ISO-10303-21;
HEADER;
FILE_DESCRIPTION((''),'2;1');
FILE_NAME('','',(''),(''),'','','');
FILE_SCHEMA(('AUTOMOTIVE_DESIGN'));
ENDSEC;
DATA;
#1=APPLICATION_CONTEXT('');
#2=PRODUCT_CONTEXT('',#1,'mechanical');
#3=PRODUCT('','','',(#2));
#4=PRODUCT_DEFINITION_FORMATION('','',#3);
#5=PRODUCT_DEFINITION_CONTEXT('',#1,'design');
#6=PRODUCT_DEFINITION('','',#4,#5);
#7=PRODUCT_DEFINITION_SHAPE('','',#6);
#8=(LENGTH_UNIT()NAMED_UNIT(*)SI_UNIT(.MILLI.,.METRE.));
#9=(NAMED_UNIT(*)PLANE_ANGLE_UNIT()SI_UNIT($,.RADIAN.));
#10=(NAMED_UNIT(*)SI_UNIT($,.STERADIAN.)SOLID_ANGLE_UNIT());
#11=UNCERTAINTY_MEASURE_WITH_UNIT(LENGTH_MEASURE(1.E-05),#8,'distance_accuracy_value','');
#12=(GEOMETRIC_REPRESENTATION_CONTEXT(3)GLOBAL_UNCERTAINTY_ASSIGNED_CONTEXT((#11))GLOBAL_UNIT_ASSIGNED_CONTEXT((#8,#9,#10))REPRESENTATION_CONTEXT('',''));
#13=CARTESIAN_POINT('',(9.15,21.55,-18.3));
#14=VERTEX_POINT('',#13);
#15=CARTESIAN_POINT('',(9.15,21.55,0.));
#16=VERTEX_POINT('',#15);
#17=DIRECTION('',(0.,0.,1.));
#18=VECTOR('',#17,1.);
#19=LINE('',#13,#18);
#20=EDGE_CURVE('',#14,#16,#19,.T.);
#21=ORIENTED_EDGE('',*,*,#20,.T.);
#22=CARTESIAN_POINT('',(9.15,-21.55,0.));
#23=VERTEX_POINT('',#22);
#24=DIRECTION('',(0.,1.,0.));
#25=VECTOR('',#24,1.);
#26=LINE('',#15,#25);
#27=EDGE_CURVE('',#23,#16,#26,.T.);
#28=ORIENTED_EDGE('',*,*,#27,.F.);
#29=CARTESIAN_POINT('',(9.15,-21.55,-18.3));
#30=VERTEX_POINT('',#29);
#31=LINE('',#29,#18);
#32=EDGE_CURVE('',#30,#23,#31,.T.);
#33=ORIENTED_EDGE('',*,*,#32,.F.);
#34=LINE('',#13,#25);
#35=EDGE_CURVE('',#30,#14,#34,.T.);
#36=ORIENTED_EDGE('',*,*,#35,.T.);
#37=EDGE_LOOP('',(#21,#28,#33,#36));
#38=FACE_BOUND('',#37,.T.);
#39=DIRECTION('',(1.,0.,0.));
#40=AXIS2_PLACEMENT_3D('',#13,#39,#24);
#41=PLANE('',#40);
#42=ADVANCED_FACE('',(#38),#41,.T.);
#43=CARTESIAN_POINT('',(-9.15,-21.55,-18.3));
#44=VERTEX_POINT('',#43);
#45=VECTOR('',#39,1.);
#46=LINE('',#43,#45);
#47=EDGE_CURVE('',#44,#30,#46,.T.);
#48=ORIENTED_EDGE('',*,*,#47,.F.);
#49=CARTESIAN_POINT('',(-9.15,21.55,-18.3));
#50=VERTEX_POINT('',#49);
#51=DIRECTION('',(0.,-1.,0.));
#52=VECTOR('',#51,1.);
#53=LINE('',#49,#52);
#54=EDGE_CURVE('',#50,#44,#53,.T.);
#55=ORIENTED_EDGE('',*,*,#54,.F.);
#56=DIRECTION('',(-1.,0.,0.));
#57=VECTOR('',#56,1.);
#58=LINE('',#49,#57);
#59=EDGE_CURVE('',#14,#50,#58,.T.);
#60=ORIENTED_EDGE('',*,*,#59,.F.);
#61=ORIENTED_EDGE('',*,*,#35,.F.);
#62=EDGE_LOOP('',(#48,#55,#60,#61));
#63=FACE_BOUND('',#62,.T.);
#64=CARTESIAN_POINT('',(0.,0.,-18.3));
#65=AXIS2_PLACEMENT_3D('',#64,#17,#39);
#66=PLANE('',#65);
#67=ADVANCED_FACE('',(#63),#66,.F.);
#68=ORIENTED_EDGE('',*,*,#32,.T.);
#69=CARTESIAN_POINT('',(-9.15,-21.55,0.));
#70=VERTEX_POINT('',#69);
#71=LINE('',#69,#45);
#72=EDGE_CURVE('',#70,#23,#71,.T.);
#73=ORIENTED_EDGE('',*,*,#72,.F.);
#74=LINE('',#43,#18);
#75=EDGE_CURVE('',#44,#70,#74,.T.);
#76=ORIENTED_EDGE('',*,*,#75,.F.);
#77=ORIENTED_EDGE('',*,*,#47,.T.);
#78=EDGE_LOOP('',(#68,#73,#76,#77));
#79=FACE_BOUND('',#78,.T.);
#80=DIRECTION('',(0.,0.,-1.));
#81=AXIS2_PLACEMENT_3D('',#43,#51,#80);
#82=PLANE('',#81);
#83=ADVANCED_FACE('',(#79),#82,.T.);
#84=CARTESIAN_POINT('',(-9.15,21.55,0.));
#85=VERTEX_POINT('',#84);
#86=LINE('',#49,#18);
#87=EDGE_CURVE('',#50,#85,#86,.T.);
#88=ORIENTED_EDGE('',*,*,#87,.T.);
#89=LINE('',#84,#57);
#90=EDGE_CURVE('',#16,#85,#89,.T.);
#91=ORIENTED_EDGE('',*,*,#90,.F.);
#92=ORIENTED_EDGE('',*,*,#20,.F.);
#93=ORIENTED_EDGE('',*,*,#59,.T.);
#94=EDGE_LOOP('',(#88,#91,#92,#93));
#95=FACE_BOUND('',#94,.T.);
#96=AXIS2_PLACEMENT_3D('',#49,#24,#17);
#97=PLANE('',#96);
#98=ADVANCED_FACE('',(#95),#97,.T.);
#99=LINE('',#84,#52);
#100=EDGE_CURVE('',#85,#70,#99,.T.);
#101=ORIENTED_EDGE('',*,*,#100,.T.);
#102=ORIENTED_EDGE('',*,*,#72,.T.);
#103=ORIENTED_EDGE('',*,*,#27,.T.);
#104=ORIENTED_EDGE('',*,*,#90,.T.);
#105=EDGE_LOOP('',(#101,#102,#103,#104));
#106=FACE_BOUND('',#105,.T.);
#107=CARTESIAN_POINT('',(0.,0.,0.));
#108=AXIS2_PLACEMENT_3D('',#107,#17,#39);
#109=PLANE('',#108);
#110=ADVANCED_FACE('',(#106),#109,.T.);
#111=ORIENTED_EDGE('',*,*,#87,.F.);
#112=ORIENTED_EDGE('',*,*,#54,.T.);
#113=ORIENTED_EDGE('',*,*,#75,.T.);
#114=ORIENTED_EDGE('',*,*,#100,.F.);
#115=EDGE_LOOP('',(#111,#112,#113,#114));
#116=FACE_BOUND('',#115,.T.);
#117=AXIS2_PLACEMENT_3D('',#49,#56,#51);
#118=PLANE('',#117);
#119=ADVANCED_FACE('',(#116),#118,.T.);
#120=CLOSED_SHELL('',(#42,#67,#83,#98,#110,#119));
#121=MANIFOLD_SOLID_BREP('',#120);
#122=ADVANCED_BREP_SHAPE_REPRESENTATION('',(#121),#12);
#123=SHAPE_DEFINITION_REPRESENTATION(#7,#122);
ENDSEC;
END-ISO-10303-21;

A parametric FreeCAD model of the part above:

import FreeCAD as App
import Part
import Sketcher


def add_polygon(sketch, points):
    """Adds a closed chain of lines whose ends are joined by coincident constraints."""
    first, n = sketch.GeometryCount, len(points)
    for a, b in zip(points, points[1:] + points[:1]):
        sketch.addGeometry(Part.LineSegment(App.Vector(*a, 0), App.Vector(*b, 0)), False)
    for i in range(n):
        sketch.addConstraint(Sketcher.Constraint("Coincident", first + i, 2, first + (i + 1) % n, 1))

doc = App.newDocument("Part")
body = doc.addObject("PartDesign::Body", "Body")

# Sketch on XY plane
sketch1 = doc.addObject("Sketcher::SketchObject", "Sketch")
body.addObject(sketch1)
sketch1.AttachmentSupport = (doc.XY_Plane, [""])
sketch1.MapMode = "FlatFace"
add_polygon(sketch1, [(-9.15, 21.55), (-9.15, -21.55), (9.15, -21.55), (9.15, 21.55)])  # lines 0-3
sketch1.addConstraint(Sketcher.Constraint("Vertical", 0))
sketch1.addConstraint(Sketcher.Constraint("Horizontal", 1))
sketch1.addConstraint(Sketcher.Constraint("Vertical", 2))
sketch1.addConstraint(Sketcher.Constraint("Horizontal", 3))
sketch1.addConstraint(Sketcher.Constraint("Symmetric", 0, 2, 2, 2, -1, 1))
sketch1.addConstraint(Sketcher.Constraint("DistanceX", 1, 1, 1, 2, 18.3))
sketch1.addConstraint(Sketcher.Constraint("DistanceY", 0, 2, 0, 1, 43.1))
pad1 = doc.addObject("PartDesign::Pad", "Pad")
body.addObject(pad1)
pad1.Profile = sketch1
pad1.Length = 18.3
pad1.Reversed = True

doc.recompute()
